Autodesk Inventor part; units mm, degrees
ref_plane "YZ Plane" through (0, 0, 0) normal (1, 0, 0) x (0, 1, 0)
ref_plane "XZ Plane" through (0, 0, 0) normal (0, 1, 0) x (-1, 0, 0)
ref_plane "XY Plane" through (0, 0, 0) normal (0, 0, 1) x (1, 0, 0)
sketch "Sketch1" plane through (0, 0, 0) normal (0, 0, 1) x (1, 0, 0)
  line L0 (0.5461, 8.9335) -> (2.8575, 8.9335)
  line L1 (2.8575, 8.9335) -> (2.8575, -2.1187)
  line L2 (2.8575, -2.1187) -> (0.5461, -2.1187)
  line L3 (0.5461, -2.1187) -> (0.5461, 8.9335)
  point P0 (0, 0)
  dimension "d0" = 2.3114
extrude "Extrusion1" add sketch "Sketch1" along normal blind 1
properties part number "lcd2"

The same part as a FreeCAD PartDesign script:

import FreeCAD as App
import Part
import Sketcher
from FreeCAD import Vector
Q = App.Units.Quantity

doc = App.newDocument("Part")
body = doc.addObject("PartDesign::Body", "Body")

# Sketch on XY plane
sketch1 = body.newObject("Sketcher::SketchObject", "Sketch")
sketch1.AttachmentSupport = (doc.getObject("XY_Plane"), [""])
sketch1.MapMode = "FlatFace"
sketch1.addGeometry(Part.LineSegment(Vector(2.9, 8.9, 0), Vector(0.5, 8.9, 0)), False)
sketch1.addGeometry(Part.LineSegment(Vector(0.5, 8.9, 0), Vector(0.5, -2.1, 0)), False)
sketch1.addGeometry(Part.LineSegment(Vector(0.5, -2.1, 0), Vector(2.9, -2.1, 0)), False)
sketch1.addGeometry(Part.LineSegment(Vector(2.9, -2.1, 0), Vector(2.9, 8.9, 0)), False)
sketch1.addConstraint(Sketcher.Constraint("Coincident", 0, 2, 1, 1))
sketch1.addConstraint(Sketcher.Constraint("Coincident", 1, 2, 2, 1))
sketch1.addConstraint(Sketcher.Constraint("Coincident", 2, 2, 3, 1))
sketch1.addConstraint(Sketcher.Constraint("Coincident", 3, 2, 0, 1))
sketch1.addConstraint(Sketcher.Constraint("Horizontal", 0))
sketch1.addConstraint(Sketcher.Constraint("Vertical", 1))
sketch1.addConstraint(Sketcher.Constraint("Horizontal", 2))
sketch1.addConstraint(Sketcher.Constraint("Vertical", 3))
sketch1.addConstraint(Sketcher.Constraint("DistanceX", 0, 2, 0, 1, Q("2.3114 mm")))
sketch1.addConstraint(Sketcher.Constraint("DistanceY", 1, 2, 1, 1, Q("11.0522 mm")))
sketch1.addConstraint(Sketcher.Constraint("DistanceX", -1, 1, 0, 2, Q("0.546 mm")))
sketch1.addConstraint(Sketcher.Constraint("DistanceY", -1, 1, 0, 2, Q("8.9335 mm")))
pad1 = body.newObject("PartDesign::Pad", "Pad")
pad1.Profile = sketch1
pad1.Length = 1

doc.recompute()
